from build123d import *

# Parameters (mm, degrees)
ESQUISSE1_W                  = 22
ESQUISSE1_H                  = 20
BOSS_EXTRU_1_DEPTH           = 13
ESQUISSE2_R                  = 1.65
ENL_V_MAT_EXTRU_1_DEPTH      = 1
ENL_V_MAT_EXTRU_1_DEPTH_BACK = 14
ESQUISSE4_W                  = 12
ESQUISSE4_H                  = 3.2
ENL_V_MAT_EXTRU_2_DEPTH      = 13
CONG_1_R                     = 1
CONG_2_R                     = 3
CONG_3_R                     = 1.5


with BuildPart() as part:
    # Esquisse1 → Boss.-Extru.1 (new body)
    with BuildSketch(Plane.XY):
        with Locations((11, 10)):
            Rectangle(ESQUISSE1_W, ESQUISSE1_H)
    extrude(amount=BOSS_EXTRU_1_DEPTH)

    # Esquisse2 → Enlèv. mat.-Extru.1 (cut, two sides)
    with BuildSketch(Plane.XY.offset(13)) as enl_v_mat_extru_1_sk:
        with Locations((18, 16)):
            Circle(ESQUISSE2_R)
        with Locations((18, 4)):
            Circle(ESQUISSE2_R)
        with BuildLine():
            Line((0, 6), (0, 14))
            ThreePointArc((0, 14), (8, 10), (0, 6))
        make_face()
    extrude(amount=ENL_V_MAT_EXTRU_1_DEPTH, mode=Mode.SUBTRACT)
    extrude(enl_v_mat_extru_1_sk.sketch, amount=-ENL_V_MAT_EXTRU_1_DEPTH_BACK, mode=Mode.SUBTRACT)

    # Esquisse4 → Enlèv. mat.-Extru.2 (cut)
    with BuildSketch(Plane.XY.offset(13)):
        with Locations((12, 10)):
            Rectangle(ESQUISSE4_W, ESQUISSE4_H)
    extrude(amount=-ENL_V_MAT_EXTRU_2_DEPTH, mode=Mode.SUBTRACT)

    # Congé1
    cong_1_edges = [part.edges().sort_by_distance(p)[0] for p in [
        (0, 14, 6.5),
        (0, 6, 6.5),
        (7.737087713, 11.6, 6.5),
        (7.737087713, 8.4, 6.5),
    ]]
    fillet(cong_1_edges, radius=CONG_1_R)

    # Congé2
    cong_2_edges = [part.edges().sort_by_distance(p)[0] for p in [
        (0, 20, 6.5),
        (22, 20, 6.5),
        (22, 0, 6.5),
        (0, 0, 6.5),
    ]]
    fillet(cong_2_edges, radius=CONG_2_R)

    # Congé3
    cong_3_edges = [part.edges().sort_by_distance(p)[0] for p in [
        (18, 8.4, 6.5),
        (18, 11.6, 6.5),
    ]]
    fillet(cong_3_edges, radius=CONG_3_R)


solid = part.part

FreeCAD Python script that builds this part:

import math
import FreeCAD as App
import Part
import Sketcher
from FreeCAD import Vector


def edges_at(feature, points):
    """Names of the edges that pass closest to the given points."""
    edges = feature.Shape.Edges
    near = lambda p: min(range(len(edges)), key=lambda i: edges[i].distToShape(Part.Vertex(*p))[0])
    return sorted({f"Edge{near(p) + 1}" for p in points})

doc = App.newDocument("Part")
body = doc.addObject("PartDesign::Body", "Body")

# Sketch on XY plane
sketch1 = body.newObject("Sketcher::SketchObject", "Sketch")
sketch1.AttachmentSupport = (doc.getObject("XY_Plane"), [""])
sketch1.MapMode = "FlatFace"
sketch1.addGeometry([
    Part.LineSegment(Vector(0, 20, 0), Vector(0, 0, 0)),
    Part.LineSegment(Vector(0, 0, 0), Vector(22, 0, 0)),
    Part.LineSegment(Vector(22, 0, 0), Vector(22, 20, 0)),
    Part.LineSegment(Vector(22, 20, 0), Vector(0, 20, 0)),
], False)
sketch1.addConstraint([
    Sketcher.Constraint("Coincident", 0, 2, 1, 1),
    Sketcher.Constraint("Coincident", 1, 2, 2, 1),
    Sketcher.Constraint("Coincident", 2, 2, 3, 1),
    Sketcher.Constraint("Coincident", 3, 2, 0, 1),
    Sketcher.Constraint("Vertical", 0),
    Sketcher.Constraint("Horizontal", 1),
    Sketcher.Constraint("Vertical", 2),
    Sketcher.Constraint("Horizontal", 3),
    Sketcher.Constraint("Coincident", 0, 2, -1, 1),
    Sketcher.Constraint("DistanceX", 1, 1, 1, 2, 22.0),
    Sketcher.Constraint("DistanceY", 0, 2, 0, 1, 20.0),
])
pad1 = body.newObject("PartDesign::Pad", "Pad")
pad1.Profile = sketch1
pad1.Length = 13

# Sketch on XY plane
sketch2 = body.newObject("Sketcher::SketchObject", "Sketch001")
sketch2.AttachmentSupport = (doc.getObject("XY_Plane"), [""])
sketch2.MapMode = "FlatFace"
sketch2.AttachmentOffset = App.Placement(Vector(0, 0, 13), App.Rotation())
sketch2.addGeometry([
    Part.Circle(Vector(18, 16, 0), Vector(0, 0, 1), 1.6),
    Part.Circle(Vector(18, 4, 0), Vector(0, 0, 1), 1.6),
    Part.LineSegment(Vector(0, 14, 0), Vector(0, 6, 0)),
    Part.ArcOfCircle(Part.Circle(Vector(3, 10, 0), Vector(0, 0, 1), 5), math.radians(-127), math.radians(127)),
], False)
sketch2.addConstraint([
    Sketcher.Constraint("Coincident", 2, 1, 3, 2),
    Sketcher.Constraint("Coincident", 3, 1, 2, 2),
    Sketcher.Constraint("Vertical", 2),
    Sketcher.Constraint("Equal", 0, 1),
    Sketcher.Constraint("PointOnObject", 2, 1, -2),
    Sketcher.Constraint("Vertical", 0, 3, 1, 3),
    Sketcher.Constraint("Radius", 3, 5.0),
    Sketcher.Constraint("Diameter", 0, 3.3),
    Sketcher.Constraint("DistanceY", 2, 2, 2, 1, 8.0),
    Sketcher.Constraint("DistanceX", -1, 1, 0, 3, 18.0),
    Sketcher.Constraint("DistanceY", -1, 1, 0, 3, 16.0),
    Sketcher.Constraint("DistanceY", -1, 1, 1, 3, 4.0),
    Sketcher.Constraint("DistanceY", -1, 1, 3, 3, 10.0),
])
pocket1 = body.newObject("PartDesign::Pocket", "Pocket")
pocket1.Profile = sketch2
pocket1.Type = "ThroughAll"
pocket1.Midplane = True

# Sketch on XY plane
sketch3 = body.newObject("Sketcher::SketchObject", "Sketch002")
sketch3.AttachmentSupport = (doc.getObject("XY_Plane"), [""])
sketch3.MapMode = "FlatFace"
sketch3.AttachmentOffset = App.Placement(Vector(0, 0, 13), App.Rotation())
sketch3.addGeometry([
    Part.LineSegment(Vector(6, 11.6, 0), Vector(6, 8.4, 0)),
    Part.LineSegment(Vector(6, 8.4, 0), Vector(18, 8.4, 0)),
    Part.LineSegment(Vector(18, 8.4, 0), Vector(18, 11.6, 0)),
    Part.LineSegment(Vector(18, 11.6, 0), Vector(6, 11.6, 0)),
], False)
sketch3.addConstraint([
    Sketcher.Constraint("Coincident", 0, 2, 1, 1),
    Sketcher.Constraint("Coincident", 1, 2, 2, 1),
    Sketcher.Constraint("Coincident", 2, 2, 3, 1),
    Sketcher.Constraint("Coincident", 3, 2, 0, 1),
    Sketcher.Constraint("Vertical", 0),
    Sketcher.Constraint("Horizontal", 1),
    Sketcher.Constraint("Vertical", 2),
    Sketcher.Constraint("Horizontal", 3),
    Sketcher.Constraint("DistanceX", 1, 1, 1, 2, 12.0),
    Sketcher.Constraint("DistanceY", 0, 2, 0, 1, 3.2),
    Sketcher.Constraint("DistanceX", -1, 1, 0, 2, 6.0),
    Sketcher.Constraint("DistanceY", -1, 1, 0, 2, 8.4),
])
pocket2 = body.newObject("PartDesign::Pocket", "Pocket001")
pocket2.Profile = sketch3
pocket2.Length = 13
doc.recompute()

fillet = body.newObject("PartDesign::Fillet", "Fillet")
fillet.Base = (pocket2, edges_at(pocket2, [
    (0, 14, 6.5),
    (0, 6, 6.5),
    (7.737, 11.6, 6.5),
    (7.737, 8.4, 6.5),
]))
fillet.Radius = 1
doc.recompute()

fillet2 = body.newObject("PartDesign::Fillet", "Fillet001")
fillet2.Base = (fillet, edges_at(fillet, [
    (0, 20, 6.5),
    (22, 20, 6.5),
    (22, 0, 6.5),
    (0, 0, 6.5),
]))
fillet2.Radius = 3
doc.recompute()

fillet3 = body.newObject("PartDesign::Fillet", "Fillet002")
fillet3.Base = (fillet2, edges_at(fillet2, [(18, 8.4, 6.5), (18, 11.6, 6.5)]))
fillet3.Radius = 1.5

doc.recompute()
